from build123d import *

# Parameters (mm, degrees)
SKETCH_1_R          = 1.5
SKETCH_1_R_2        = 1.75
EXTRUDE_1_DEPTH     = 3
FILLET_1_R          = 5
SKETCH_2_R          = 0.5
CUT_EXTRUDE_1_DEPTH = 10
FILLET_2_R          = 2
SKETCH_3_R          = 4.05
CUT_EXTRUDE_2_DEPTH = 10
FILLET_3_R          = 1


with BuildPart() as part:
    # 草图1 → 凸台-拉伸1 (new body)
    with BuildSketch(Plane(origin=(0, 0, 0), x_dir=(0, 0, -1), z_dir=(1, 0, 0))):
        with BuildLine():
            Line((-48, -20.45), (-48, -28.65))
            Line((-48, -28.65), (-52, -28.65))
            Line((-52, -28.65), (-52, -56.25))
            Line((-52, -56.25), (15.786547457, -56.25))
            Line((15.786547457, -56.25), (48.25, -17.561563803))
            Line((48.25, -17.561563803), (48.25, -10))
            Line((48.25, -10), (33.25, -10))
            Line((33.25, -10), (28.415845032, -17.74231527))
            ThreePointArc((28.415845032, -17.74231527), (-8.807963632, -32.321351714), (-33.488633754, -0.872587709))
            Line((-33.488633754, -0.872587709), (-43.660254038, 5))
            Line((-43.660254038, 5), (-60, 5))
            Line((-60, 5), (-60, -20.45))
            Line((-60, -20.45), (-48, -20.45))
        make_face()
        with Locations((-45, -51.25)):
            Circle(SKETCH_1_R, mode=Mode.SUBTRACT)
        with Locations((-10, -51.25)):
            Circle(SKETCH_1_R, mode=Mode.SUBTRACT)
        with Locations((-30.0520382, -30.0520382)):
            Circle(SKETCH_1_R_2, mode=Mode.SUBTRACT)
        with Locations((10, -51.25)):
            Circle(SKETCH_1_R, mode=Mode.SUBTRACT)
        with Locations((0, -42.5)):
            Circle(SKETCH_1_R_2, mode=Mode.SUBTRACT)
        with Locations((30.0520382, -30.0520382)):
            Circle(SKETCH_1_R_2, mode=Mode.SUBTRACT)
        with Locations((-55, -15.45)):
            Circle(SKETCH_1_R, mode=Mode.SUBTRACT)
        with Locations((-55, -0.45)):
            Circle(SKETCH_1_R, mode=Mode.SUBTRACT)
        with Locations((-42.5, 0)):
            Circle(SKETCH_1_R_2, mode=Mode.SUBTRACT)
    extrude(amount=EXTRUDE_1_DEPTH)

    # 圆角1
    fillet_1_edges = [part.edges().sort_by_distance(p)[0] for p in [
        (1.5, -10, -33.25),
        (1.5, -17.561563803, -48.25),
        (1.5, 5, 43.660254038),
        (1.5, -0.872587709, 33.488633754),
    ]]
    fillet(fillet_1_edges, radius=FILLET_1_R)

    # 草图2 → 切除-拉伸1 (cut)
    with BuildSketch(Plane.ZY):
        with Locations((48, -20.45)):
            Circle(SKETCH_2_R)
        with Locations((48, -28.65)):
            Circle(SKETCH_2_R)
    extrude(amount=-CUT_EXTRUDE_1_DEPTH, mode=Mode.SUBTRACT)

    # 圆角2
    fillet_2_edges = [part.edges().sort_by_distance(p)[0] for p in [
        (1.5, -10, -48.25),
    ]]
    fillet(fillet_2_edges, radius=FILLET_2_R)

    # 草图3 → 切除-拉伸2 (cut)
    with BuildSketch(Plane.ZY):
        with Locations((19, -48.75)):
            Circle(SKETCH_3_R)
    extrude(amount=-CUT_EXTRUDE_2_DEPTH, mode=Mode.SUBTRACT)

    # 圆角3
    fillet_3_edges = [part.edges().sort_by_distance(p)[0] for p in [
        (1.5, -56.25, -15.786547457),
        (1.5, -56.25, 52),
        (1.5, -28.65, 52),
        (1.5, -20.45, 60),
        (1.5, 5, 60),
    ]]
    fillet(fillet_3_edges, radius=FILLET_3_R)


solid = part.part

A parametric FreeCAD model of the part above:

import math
import FreeCAD as App
import Part
import Sketcher
Q = App.Units.Quantity


def edges_at(feature, points):
    """Names of the edges that pass closest to the given points."""
    edges = feature.Shape.Edges
    near = lambda p: min(range(len(edges)), key=lambda i: edges[i].distToShape(Part.Vertex(*p))[0])
    return sorted({f"Edge{near(p) + 1}" for p in points})

doc = App.newDocument("Part")
body = doc.addObject("PartDesign::Body", "Body")

# Sketch on YZ plane
sketch1 = body.newObject("Sketcher::SketchObject", "Sketch")
sketch1.AttachmentSupport = (doc.getObject("YZ_Plane"), [""])
sketch1.MapMode = "FlatFace"
sketch1.addGeometry([
    Part.LineSegment(App.Vector(-20.4, 48, 0), App.Vector(-28.6, 48, 0)),  # 0
    Part.LineSegment(App.Vector(-28.6, 48, 0), App.Vector(-28.6, 52, 0)),  # 1
    Part.LineSegment(App.Vector(-28.6, 52, 0), App.Vector(-56.2, 52, 0)),  # 2
    Part.LineSegment(App.Vector(-56.2, 52, 0), App.Vector(-56.2, -15.8, 0)),  # 3
    Part.LineSegment(App.Vector(-56.2, -15.8, 0), App.Vector(-17.6, -48.2, 0)),  # 4
    Part.LineSegment(App.Vector(-17.6, -48.2, 0), App.Vector(-10, -48.2, 0)),  # 5
    Part.LineSegment(App.Vector(-10, -48.2, 0), App.Vector(-10, -33.2, 0)),  # 6
    Part.LineSegment(App.Vector(-10, -33.2, 0), App.Vector(-17.7, -28.4, 0)),  # 7
    Part.ArcOfCircle(Part.Circle(App.Vector(0, 0, 0), App.Vector(0, 0, 1), 33.5), math.radians(91), math.radians(238)),  # 8
    Part.LineSegment(App.Vector(-0.9, 33.5, 0), App.Vector(5, 43.7, 0)),  # 9
    Part.LineSegment(App.Vector(5, 43.7, 0), App.Vector(5, 60, 0)),  # 10
    Part.LineSegment(App.Vector(5, 60, 0), App.Vector(-20.4, 60, 0)),  # 11
    Part.LineSegment(App.Vector(-20.4, 60, 0), App.Vector(-20.4, 48, 0)),  # 12
    Part.Circle(App.Vector(-51.2, 45, 0), App.Vector(0, 0, 1), 1.5),  # 13
    Part.Circle(App.Vector(-30.1, 30.1, 0), App.Vector(0, 0, 1), 1.8),  # 14
    Part.Circle(App.Vector(-51.2, 10, 0), App.Vector(0, 0, 1), 1.5),  # 15
    Part.Circle(App.Vector(-42.5, 0, 0), App.Vector(0, 0, 1), 1.8),  # 16
    Part.Circle(App.Vector(-51.2, -10, 0), App.Vector(0, 0, 1), 1.5),  # 17
    Part.Circle(App.Vector(-30.1, -30.1, 0), App.Vector(0, 0, 1), 1.8),  # 18
    Part.Circle(App.Vector(-15.4, 55, 0), App.Vector(0, 0, 1), 1.5),  # 19
    Part.Circle(App.Vector(-0.5, 55, 0), App.Vector(0, 0, 1), 1.5),  # 20
    Part.Circle(App.Vector(0, 42.5, 0), App.Vector(0, 0, 1), 1.8),  # 21
], False)
sketch1.addConstraint([
    Sketcher.Constraint("Coincident", 0, 2, 1, 1),
    Sketcher.Constraint("Coincident", 1, 2, 2, 1),
    Sketcher.Constraint("Coincident", 2, 2, 3, 1),
    Sketcher.Constraint("Coincident", 3, 2, 4, 1),
    Sketcher.Constraint("Coincident", 4, 2, 5, 1),
    Sketcher.Constraint("Coincident", 5, 2, 6, 1),
    Sketcher.Constraint("Coincident", 6, 2, 7, 1),
    Sketcher.Constraint("Tangent", 7, 2, 8, 2),
    Sketcher.Constraint("Coincident", 8, 1, 9, 1),
    Sketcher.Constraint("Coincident", 9, 2, 10, 1),
    Sketcher.Constraint("Coincident", 10, 2, 11, 1),
    Sketcher.Constraint("Coincident", 11, 2, 12, 1),
    Sketcher.Constraint("Coincident", 12, 2, 0, 1),
    Sketcher.Constraint("Horizontal", 0),
    Sketcher.Constraint("Vertical", 1),
    Sketcher.Constraint("Horizontal", 2),
    Sketcher.Constraint("Vertical", 3),
    Sketcher.Constraint("Horizontal", 5),
    Sketcher.Constraint("Vertical", 6),
    Sketcher.Constraint("Vertical", 10),
    Sketcher.Constraint("Horizontal", 11),
    Sketcher.Constraint("Vertical", 12),
    Sketcher.Constraint("Coincident", 8, 3, -1, 1),
    Sketcher.Constraint("Equal", 13, 15),
    Sketcher.Constraint("Equal", 14, 16),
    Sketcher.Constraint("Equal", 15, 17),
    Sketcher.Constraint("Equal", 16, 18),
    Sketcher.Constraint("Equal", 17, 19),
    Sketcher.Constraint("Equal", 19, 20),
    Sketcher.Constraint("Equal", 18, 21),
    Sketcher.Constraint("Symmetric", 15, 3, 17, 3, -1),
    Sketcher.Constraint("Symmetric", 14, 3, 18, 3, -1),
    Sketcher.Constraint("PointOnObject", 16, 3, -1),
    Sketcher.Constraint("PointOnObject", 21, 3, -2),
    Sketcher.Constraint("Horizontal", 19, 3, 20, 3),
    Sketcher.Constraint("Vertical", 13, 3, 15, 3),
    Sketcher.Constraint("Diameter", 13, 3.0),
    Sketcher.Constraint("Diameter", 14, 3.5),
    Sketcher.Constraint("Radius", 8, 33.5),
    Sketcher.Constraint("DistanceY", 1, 1, 1, 2, 4.0),
    Sketcher.Constraint("DistanceY", 6, 1, 6, 2, 15.0),
    Sketcher.Constraint("DistanceY", 12, 2, 12, 1, 12.0),
    Sketcher.Constraint("Angle", 4, Q("-40 deg")),
    Sketcher.Constraint("Angle", 9, Q("60 deg")),
    Sketcher.Constraint("DistanceX", 0, 2, 0, 1, 8.2),
    Sketcher.Constraint("DistanceX", 2, 2, 2, 1, 27.6),
    Sketcher.Constraint("DistanceY", -1, 1, 13, 3, 45.0),
    Sketcher.Constraint("DistanceY", -1, 1, 15, 3, 10.0),
    Sketcher.Constraint("DistanceY", -1, 1, 19, 3, 55.0),
    Sketcher.Constraint("DistanceY", -1, 1, 0, 2, 48.0),
    Sketcher.Constraint("DistanceX", 5, 2, -1, 1, 10.0),
    Sketcher.Constraint("DistanceX", -1, 1, 9, 2, 5.0),
    Sketcher.Constraint("DistanceX", 19, 3, 20, 3, 15.0),
    Sketcher.Constraint("DistanceX", 2, 2, 13, 3, 5.0),
    Sketcher.Constraint("DistanceX", 11, 2, 19, 3, 5.0),
    Sketcher.Constraint("DistanceX", 11, 2, 11, 1, 25.45),
    Sketcher.Constraint("DistanceX", 16, 3, -1, 1, 42.5),
    Sketcher.Constraint("DistanceY", -1, 1, 21, 3, 42.5),
    Sketcher.Constraint("DistanceY", 4, 2, -1, 1, 48.25),
    Sketcher.Constraint("DistanceX", 5, 1, 5, 2, 7.561564),
    Sketcher.Constraint("DistanceY", 10, 1, 10, 2, 16.339746),
    Sketcher.Constraint("DistanceX", 14, 3, -1, 1, 30.052038),
    Sketcher.Constraint("DistanceY", -1, 1, 14, 3, 30.052038),
])
pad1 = body.newObject("PartDesign::Pad", "Pad")
pad1.Profile = sketch1
pad1.Length = 3
doc.recompute()

fillet = body.newObject("PartDesign::Fillet", "Fillet")
fillet.Base = (pad1, edges_at(pad1, [
    (1.5, -10, -33.25),
    (1.5, -17.562, -48.25),
    (1.5, 5, 43.66),
    (1.5, -0.873, 33.489),
]))
fillet.Radius = 5

# Sketch on YZ plane
sketch2 = body.newObject("Sketcher::SketchObject", "Sketch001")
sketch2.AttachmentSupport = (doc.getObject("YZ_Plane"), [""])
sketch2.MapMode = "FlatFace"
sketch2.addGeometry([
    Part.Circle(App.Vector(-20.4, 48, 0), App.Vector(0, 0, 1), 0.5),
    Part.Circle(App.Vector(-28.6, 48, 0), App.Vector(0, 0, 1), 0.5),
], False)
sketch2.addConstraint([
    Sketcher.Constraint("Equal", 0, 1),
    Sketcher.Constraint("Horizontal", 0, 3, 1, 3),
    Sketcher.Constraint("Diameter", 0, 1.0),
    Sketcher.Constraint("DistanceY", -1, 1, 0, 3, 48.0),
    Sketcher.Constraint("DistanceX", 1, 3, 0, 3, 8.2),
    Sketcher.Constraint("DistanceX", 0, 3, -1, 1, 20.45),
])
pocket1 = body.newObject("PartDesign::Pocket", "Pocket")
pocket1.Profile = sketch2
pocket1.Length = 10
pocket1.Reversed = True
doc.recompute()

fillet2 = body.newObject("PartDesign::Fillet", "Fillet001")
fillet2.Base = (pocket1, edges_at(pocket1, [(1.5, -10, -48.25)]))
fillet2.Radius = 2

# Sketch on YZ plane
sketch3 = body.newObject("Sketcher::SketchObject", "Sketch002")
sketch3.AttachmentSupport = (doc.getObject("YZ_Plane"), [""])
sketch3.MapMode = "FlatFace"
sketch3.addGeometry(Part.Circle(App.Vector(-48.8, 19, 0), App.Vector(0, 0, 1), 4), False)
sketch3.addConstraint([
    Sketcher.Constraint("Diameter", 0, 8.1),
    Sketcher.Constraint("DistanceY", -1, 1, 0, 3, 19.0),
    Sketcher.Constraint("DistanceX", 0, 3, -1, 1, 48.75),
])
pocket2 = body.newObject("PartDesign::Pocket", "Pocket001")
pocket2.Profile = sketch3
pocket2.Length = 10
pocket2.Reversed = True
doc.recompute()

fillet3 = body.newObject("PartDesign::Fillet", "Fillet002")
fillet3.Base = (pocket2, edges_at(pocket2, [
    (1.5, -56.25, -15.787),
    (1.5, -56.25, 52),
    (1.5, -28.65, 52),
    (1.5, -20.45, 60),
    (1.5, 5, 60),
]))
fillet3.Radius = 1

doc.recompute()
